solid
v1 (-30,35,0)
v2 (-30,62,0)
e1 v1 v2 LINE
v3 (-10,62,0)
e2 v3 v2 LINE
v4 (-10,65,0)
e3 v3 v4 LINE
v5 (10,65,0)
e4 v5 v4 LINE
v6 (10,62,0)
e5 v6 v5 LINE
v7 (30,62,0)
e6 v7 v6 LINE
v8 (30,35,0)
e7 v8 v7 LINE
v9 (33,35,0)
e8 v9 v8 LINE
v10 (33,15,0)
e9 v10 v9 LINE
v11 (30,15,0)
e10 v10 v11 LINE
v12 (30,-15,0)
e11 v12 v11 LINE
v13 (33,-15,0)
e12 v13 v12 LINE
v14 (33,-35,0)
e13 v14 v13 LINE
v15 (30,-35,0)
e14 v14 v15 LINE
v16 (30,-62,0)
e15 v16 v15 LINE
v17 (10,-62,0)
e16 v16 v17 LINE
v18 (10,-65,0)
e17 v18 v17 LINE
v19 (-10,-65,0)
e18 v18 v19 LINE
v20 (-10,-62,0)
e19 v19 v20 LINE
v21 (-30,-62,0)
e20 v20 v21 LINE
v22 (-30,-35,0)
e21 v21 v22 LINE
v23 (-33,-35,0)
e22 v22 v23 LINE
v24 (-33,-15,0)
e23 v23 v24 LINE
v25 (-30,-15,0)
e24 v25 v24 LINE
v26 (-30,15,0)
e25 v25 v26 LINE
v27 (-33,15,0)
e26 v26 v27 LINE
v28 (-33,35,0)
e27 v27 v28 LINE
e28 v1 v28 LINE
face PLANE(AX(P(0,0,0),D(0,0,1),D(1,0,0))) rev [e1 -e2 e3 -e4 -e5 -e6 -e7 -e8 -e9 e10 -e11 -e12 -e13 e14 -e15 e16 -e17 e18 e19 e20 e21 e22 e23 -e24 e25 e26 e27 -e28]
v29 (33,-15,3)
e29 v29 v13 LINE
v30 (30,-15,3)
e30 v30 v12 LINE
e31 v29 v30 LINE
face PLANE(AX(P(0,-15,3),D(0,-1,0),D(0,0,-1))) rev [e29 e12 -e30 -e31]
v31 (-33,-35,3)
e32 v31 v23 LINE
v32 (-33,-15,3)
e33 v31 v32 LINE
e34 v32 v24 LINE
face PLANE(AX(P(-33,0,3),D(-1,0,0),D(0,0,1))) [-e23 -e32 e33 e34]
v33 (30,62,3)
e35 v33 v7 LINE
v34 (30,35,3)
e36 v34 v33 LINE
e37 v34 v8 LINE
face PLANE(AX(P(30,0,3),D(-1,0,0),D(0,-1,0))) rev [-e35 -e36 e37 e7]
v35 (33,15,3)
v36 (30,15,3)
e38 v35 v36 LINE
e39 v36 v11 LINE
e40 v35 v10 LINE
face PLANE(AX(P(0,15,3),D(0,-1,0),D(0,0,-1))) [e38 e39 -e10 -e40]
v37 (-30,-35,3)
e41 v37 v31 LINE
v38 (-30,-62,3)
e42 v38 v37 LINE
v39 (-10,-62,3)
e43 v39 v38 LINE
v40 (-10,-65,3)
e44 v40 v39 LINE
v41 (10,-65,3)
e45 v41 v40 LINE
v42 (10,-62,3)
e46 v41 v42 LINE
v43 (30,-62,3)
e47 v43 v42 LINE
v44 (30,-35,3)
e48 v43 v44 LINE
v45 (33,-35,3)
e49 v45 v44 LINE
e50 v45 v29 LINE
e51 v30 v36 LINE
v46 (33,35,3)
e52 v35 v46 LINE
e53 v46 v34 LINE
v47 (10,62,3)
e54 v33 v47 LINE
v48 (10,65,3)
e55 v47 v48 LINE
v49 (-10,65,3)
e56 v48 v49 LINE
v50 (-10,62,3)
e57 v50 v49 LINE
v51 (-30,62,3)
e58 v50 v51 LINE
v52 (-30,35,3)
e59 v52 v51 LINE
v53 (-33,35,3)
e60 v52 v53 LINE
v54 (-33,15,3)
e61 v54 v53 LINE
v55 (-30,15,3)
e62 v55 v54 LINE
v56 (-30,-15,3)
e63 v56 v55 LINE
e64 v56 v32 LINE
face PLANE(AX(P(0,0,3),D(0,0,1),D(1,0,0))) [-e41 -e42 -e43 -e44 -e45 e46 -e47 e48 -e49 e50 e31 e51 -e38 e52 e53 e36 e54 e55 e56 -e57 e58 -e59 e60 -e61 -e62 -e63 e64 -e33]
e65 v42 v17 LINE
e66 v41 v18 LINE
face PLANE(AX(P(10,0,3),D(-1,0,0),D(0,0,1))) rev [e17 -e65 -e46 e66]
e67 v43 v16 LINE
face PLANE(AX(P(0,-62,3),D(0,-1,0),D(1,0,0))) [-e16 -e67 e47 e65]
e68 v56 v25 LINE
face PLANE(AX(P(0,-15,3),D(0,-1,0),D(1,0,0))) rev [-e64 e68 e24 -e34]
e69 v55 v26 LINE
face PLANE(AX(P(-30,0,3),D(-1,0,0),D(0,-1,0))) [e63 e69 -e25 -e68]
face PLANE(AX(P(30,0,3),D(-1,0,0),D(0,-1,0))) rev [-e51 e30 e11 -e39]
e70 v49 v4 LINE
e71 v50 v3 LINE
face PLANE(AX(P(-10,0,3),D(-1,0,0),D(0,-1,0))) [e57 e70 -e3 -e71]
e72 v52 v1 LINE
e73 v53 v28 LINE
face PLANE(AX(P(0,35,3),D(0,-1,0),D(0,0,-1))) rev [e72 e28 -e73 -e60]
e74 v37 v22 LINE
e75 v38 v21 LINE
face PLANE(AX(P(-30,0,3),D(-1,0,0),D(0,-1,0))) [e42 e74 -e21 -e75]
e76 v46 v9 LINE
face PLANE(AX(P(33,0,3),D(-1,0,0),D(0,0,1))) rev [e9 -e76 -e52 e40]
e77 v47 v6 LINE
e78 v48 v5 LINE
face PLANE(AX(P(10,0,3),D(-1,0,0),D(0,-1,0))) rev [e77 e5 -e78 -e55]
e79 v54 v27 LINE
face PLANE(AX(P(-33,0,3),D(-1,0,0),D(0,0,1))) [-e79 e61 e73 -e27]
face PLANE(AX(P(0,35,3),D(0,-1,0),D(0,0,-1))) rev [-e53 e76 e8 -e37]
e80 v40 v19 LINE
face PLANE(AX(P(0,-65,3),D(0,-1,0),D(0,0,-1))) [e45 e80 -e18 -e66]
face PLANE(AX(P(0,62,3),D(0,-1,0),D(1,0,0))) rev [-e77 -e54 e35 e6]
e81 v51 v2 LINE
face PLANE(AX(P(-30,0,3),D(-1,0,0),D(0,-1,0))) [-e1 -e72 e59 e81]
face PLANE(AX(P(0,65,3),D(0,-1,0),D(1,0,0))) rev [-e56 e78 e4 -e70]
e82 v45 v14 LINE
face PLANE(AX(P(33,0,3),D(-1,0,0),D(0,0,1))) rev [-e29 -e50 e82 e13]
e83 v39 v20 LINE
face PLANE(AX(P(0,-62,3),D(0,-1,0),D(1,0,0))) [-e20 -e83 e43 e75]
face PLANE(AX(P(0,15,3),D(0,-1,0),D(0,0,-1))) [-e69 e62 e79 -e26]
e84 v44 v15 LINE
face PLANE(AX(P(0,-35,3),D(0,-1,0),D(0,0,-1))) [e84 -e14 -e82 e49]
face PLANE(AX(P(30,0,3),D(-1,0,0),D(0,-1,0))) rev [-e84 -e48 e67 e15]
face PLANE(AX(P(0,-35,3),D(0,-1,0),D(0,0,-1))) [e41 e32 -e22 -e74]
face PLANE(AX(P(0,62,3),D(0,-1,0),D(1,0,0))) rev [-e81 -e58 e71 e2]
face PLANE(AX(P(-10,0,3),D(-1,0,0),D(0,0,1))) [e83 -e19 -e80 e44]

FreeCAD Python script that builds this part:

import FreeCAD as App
import Part
import Sketcher

V = App.Vector


def add_polygon(sketch, points):
    """Adds a closed chain of lines whose ends are joined by coincident constraints."""
    first, n = sketch.GeometryCount, len(points)
    for a, b in zip(points, points[1:] + points[:1]):
        sketch.addGeometry(Part.LineSegment(App.Vector(*a, 0), App.Vector(*b, 0)), False)
    for i in range(n):
        sketch.addConstraint(Sketcher.Constraint("Coincident", first + i, 2, first + (i + 1) % n, 1))

doc = App.newDocument("Part")
body = doc.addObject("PartDesign::Body", "Body")

# Sketch on XY plane
sketch1 = body.newObject("Sketcher::SketchObject", "Sketch")
sketch1.AttachmentSupport = (doc.getObject("XY_Plane"), [""])
sketch1.MapMode = "FlatFace"
add_polygon(sketch1, [(30, -62), (30, -35), (33, -35), (33, -15), (30, -15), (30, 15), (33, 15), (33, 35), (30, 35), (30, 62), (10, 62), (10, 65), (-10, 65), (-10, 62), (-30, 62), (-30, 35), (-33, 35), (-33, 15), (-30, 15), (-30, -15), (-33, -15), (-33, -35), (-30, -35), (-30, -62), (-10, -62), (-10, -65), (10, -65), (10, -62)])  # lines 0-27
sketch1.addConstraint([
    Sketcher.Constraint("Vertical", 0),
    Sketcher.Constraint("Horizontal", 1),
    Sketcher.Constraint("Vertical", 2),
    Sketcher.Constraint("Horizontal", 3),
    Sketcher.Constraint("Vertical", 4),
    Sketcher.Constraint("Horizontal", 5),
    Sketcher.Constraint("Vertical", 6),
    Sketcher.Constraint("Horizontal", 7),
    Sketcher.Constraint("Vertical", 8),
    Sketcher.Constraint("Horizontal", 9),
    Sketcher.Constraint("Vertical", 10),
    Sketcher.Constraint("Horizontal", 11),
    Sketcher.Constraint("Vertical", 12),
    Sketcher.Constraint("Horizontal", 13),
    Sketcher.Constraint("Vertical", 14),
    Sketcher.Constraint("Horizontal", 15),
    Sketcher.Constraint("Vertical", 16),
    Sketcher.Constraint("Horizontal", 17),
    Sketcher.Constraint("Vertical", 18),
    Sketcher.Constraint("Horizontal", 19),
    Sketcher.Constraint("Vertical", 20),
    Sketcher.Constraint("Horizontal", 21),
    Sketcher.Constraint("Vertical", 22),
    Sketcher.Constraint("Horizontal", 23),
    Sketcher.Constraint("Vertical", 24),
    Sketcher.Constraint("Horizontal", 25),
    Sketcher.Constraint("Vertical", 26),
    Sketcher.Constraint("Horizontal", 27),
    Sketcher.Constraint("Symmetric", 0, 2, 14, 2, -1, 1),
    Sketcher.Constraint("Symmetric", 2, 2, 16, 2, -1, 1),
    Sketcher.Constraint("Symmetric", 4, 2, 18, 2, -1, 1),
    Sketcher.Constraint("Symmetric", 6, 2, 20, 2, -1, 1),
    Sketcher.Constraint("Symmetric", 8, 2, 22, 2, -1, 1),
    Sketcher.Constraint("Symmetric", 10, 2, 24, 2, -1, 1),
    Sketcher.Constraint("Symmetric", 12, 2, 26, 2, -1, 1),
    Sketcher.Constraint("Symmetric", 9, 2, 12, 2, -2),
    Sketcher.Constraint("Symmetric", 7, 2, 14, 2, -2),
    Sketcher.Constraint("Symmetric", 5, 2, 16, 2, -2),
    Sketcher.Constraint("Vertical", 0, 2, 3, 2),
    Sketcher.Constraint("Equal", 9, 11),
    Sketcher.Constraint("Equal", 27, 2),
    Sketcher.Constraint("Equal", 21, 10),
    Sketcher.Constraint("DistanceX", 1, 1, 1, 2, 3.0),
    Sketcher.Constraint("DistanceX", 9, 2, 9, 1, 20.0),
    Sketcher.Constraint("DistanceY", 0, 1, 0, 2, 27.0),
    Sketcher.Constraint("DistanceY", 4, 1, 4, 2, 30.0),
])
pad1 = body.newObject("PartDesign::Pad", "Pad")
pad1.Profile = sketch1
pad1.Length = 3

doc.recompute()
